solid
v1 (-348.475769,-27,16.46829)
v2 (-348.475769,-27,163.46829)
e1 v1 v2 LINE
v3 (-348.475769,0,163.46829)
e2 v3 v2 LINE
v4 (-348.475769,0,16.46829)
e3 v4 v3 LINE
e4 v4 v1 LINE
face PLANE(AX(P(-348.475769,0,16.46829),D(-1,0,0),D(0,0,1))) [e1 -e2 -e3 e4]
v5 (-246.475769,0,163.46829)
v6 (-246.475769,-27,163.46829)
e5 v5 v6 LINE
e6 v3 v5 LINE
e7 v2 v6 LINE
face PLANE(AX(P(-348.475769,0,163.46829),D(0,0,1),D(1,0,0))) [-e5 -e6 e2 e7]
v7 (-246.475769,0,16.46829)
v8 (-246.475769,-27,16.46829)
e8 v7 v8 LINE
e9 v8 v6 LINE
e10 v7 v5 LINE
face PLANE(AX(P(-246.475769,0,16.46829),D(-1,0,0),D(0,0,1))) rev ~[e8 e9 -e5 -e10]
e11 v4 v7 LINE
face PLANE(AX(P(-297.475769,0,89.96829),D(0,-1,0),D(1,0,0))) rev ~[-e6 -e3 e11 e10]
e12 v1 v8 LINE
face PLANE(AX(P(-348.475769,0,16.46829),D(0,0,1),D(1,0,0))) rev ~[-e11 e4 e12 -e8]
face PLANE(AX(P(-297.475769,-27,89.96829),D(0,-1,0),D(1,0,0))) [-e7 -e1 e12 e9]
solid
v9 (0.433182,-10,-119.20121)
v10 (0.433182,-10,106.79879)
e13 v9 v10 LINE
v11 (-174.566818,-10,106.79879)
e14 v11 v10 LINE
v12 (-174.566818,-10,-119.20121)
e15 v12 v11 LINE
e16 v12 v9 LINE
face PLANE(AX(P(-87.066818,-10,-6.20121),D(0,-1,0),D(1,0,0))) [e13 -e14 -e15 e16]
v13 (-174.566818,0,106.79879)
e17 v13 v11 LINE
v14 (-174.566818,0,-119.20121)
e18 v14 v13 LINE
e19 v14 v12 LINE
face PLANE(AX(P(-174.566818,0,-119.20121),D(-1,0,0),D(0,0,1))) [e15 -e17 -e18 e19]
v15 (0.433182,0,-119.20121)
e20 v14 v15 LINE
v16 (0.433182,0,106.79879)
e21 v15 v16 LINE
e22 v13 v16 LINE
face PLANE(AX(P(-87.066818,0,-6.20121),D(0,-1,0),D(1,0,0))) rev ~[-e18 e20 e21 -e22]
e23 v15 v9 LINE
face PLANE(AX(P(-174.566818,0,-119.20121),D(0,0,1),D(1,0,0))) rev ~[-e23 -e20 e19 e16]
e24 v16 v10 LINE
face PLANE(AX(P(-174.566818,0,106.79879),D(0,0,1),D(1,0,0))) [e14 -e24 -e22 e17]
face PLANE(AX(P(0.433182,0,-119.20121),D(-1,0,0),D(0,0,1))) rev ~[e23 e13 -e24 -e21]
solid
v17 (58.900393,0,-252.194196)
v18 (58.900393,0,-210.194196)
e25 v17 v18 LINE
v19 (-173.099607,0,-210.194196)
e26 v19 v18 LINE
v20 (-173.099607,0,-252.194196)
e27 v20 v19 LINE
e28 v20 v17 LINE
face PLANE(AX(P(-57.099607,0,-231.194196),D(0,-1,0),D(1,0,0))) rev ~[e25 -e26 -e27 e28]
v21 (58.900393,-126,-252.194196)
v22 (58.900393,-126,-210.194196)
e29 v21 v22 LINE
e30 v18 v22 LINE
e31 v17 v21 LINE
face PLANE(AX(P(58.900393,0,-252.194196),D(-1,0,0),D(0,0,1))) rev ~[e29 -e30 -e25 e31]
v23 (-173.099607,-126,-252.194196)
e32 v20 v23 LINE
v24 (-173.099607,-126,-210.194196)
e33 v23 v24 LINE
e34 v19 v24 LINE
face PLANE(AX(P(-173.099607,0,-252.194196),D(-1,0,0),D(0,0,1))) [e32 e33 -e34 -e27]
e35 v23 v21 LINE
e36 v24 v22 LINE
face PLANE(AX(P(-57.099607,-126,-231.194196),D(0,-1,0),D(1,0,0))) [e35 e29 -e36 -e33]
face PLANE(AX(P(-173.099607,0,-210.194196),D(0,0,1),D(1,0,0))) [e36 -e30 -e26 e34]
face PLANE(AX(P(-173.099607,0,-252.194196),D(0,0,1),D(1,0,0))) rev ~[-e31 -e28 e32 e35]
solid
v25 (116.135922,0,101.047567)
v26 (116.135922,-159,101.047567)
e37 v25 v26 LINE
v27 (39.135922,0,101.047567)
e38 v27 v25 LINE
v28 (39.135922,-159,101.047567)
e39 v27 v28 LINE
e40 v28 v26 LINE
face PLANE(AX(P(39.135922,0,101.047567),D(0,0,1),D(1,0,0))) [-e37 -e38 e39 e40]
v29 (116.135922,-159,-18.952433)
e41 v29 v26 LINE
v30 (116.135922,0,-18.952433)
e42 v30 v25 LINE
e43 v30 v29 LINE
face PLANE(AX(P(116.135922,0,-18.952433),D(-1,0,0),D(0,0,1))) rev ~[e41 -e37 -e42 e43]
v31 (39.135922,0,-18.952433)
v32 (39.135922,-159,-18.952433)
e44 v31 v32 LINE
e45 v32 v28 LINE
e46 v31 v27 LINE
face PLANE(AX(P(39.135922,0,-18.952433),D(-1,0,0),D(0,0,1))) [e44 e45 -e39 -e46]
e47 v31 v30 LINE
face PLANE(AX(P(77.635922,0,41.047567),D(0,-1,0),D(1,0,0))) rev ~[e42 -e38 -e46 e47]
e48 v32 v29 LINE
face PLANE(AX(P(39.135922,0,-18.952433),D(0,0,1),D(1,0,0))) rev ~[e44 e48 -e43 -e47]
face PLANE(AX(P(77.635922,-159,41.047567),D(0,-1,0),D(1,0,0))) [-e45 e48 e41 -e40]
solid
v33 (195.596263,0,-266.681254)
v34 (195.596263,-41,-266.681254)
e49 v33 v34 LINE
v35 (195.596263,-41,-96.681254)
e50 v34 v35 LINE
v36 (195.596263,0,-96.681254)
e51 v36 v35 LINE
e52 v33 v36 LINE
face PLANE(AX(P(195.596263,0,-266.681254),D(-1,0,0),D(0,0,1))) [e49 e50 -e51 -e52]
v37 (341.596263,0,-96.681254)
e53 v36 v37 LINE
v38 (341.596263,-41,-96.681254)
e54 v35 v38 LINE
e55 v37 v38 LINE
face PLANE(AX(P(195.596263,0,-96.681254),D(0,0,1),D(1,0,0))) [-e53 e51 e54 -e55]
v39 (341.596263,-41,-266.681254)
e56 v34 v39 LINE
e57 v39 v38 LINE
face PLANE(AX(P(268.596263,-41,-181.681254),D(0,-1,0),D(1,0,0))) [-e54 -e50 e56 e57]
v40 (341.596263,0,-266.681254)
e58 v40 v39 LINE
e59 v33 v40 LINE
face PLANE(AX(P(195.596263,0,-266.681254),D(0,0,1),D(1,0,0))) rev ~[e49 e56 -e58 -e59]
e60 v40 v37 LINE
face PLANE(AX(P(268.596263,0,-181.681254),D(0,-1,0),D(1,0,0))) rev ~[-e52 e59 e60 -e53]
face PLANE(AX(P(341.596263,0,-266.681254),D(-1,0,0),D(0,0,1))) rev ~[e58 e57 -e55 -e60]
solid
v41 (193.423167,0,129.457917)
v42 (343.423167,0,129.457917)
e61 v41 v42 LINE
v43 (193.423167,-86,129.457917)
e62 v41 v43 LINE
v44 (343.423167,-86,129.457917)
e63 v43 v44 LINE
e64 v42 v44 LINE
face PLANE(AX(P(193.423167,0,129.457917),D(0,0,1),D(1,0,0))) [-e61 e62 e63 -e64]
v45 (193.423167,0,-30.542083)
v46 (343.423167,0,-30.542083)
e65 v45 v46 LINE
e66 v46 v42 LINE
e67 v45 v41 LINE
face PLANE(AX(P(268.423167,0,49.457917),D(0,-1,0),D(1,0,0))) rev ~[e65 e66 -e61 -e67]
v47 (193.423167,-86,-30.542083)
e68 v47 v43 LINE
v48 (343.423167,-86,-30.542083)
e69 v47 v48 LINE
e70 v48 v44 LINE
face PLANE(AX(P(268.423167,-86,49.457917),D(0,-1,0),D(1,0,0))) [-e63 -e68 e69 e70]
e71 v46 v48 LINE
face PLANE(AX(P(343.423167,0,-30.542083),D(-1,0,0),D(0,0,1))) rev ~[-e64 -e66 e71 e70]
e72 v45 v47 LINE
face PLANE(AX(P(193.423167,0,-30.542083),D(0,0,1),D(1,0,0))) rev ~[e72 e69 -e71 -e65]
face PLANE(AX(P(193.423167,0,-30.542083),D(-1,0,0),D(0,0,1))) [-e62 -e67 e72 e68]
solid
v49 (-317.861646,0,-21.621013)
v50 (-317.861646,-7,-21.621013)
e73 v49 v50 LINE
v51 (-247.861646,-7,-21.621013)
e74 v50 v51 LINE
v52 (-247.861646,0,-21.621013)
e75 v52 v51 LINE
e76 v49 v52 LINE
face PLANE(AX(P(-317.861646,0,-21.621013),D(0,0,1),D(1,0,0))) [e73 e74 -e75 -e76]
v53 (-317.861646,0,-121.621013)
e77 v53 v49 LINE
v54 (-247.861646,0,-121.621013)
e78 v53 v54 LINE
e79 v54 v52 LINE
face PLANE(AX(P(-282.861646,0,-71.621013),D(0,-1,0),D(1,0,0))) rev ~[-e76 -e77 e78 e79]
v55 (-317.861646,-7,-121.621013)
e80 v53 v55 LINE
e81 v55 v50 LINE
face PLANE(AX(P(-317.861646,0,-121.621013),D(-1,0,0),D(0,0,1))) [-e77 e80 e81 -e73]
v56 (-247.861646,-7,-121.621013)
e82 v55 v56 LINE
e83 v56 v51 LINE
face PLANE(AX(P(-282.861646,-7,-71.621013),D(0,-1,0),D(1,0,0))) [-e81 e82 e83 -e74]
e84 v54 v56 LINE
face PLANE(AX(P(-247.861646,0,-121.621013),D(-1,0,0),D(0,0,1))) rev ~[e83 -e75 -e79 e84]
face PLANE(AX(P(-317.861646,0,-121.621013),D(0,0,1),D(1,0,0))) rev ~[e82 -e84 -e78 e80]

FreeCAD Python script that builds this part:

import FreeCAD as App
import Part
import Sketcher
from FreeCAD import Vector


def add_polygon(sketch, points):
    """Adds a closed chain of lines whose ends are joined by coincident constraints."""
    first, n = sketch.GeometryCount, len(points)
    for a, b in zip(points, points[1:] + points[:1]):
        sketch.addGeometry(Part.LineSegment(App.Vector(*a, 0), App.Vector(*b, 0)), False)
    for i in range(n):
        sketch.addConstraint(Sketcher.Constraint("Coincident", first + i, 2, first + (i + 1) % n, 1))

doc = App.newDocument("Part")
body = doc.addObject("PartDesign::Body", "Body")

sketch1 = body.newObject("Sketcher::SketchObject", "Sketch")
sketch1.AttachmentSupport = (doc.getObject("XZ_Plane"), [""])
sketch1.MapMode = "FlatFace"
add_polygon(sketch1, [(-174.566818, 106.79879), (-174.566818, -119.20121), (0.433182, -119.20121), (0.433182, 106.79879)])
sketch1.addConstraint([
    Sketcher.Constraint("Vertical", 0),
    Sketcher.Constraint("Horizontal", 1),
    Sketcher.Constraint("Vertical", 2),
    Sketcher.Constraint("Horizontal", 3),
    Sketcher.Constraint("DistanceX", 1, 1, 1, 2, 175.0),
    Sketcher.Constraint("DistanceY", 0, 2, 0, 1, 226.0),
    Sketcher.Constraint("DistanceX", 0, 2, -1, 1, 174.566818),
    Sketcher.Constraint("DistanceY", 0, 2, -1, 1, 119.20121),
])
pad1 = body.newObject("PartDesign::Pad", "Pad")
pad1.Profile = sketch1
pad1.Length = 10
body2 = doc.addObject("PartDesign::Body", "Body001")

sketch2 = body2.newObject("Sketcher::SketchObject", "Sketch001")
sketch2.AttachmentSupport = (doc.getObject("XZ_Plane001"), [""])
sketch2.MapMode = "FlatFace"
add_polygon(sketch2, [(39.135922, 101.047567), (39.135922, -18.952433), (116.135922, -18.952433), (116.135922, 101.047567)])
sketch2.addConstraint([
    Sketcher.Constraint("Vertical", 0),
    Sketcher.Constraint("Horizontal", 1),
    Sketcher.Constraint("Vertical", 2),
    Sketcher.Constraint("Horizontal", 3),
    Sketcher.Constraint("DistanceX", 1, 1, 1, 2, 77.0),
    Sketcher.Constraint("DistanceY", 0, 2, 0, 1, 120.0),
    Sketcher.Constraint("DistanceX", -1, 1, 1, 2, 116.135922),
    Sketcher.Constraint("DistanceY", 0, 2, -1, 1, 18.952433),
])
pad2 = body2.newObject("PartDesign::Pad", "Pad001")
pad2.Profile = sketch2
pad2.Length = 159
body3 = doc.addObject("PartDesign::Body", "Body002")

sketch3 = body3.newObject("Sketcher::SketchObject", "Sketch002")
sketch3.AttachmentSupport = (doc.getObject("XZ_Plane002"), [""])
sketch3.MapMode = "FlatFace"
add_polygon(sketch3, [(193.423167, 129.457917), (193.423167, -30.542083), (343.423167, -30.542083), (343.423167, 129.457917)])
sketch3.addConstraint([
    Sketcher.Constraint("Vertical", 0),
    Sketcher.Constraint("Horizontal", 1),
    Sketcher.Constraint("Vertical", 2),
    Sketcher.Constraint("Horizontal", 3),
    Sketcher.Constraint("DistanceX", 1, 1, 1, 2, 150.0),
    Sketcher.Constraint("DistanceY", 0, 2, 0, 1, 160.0),
    Sketcher.Constraint("DistanceX", -1, 1, 0, 2, 193.423167),
    Sketcher.Constraint("DistanceY", 0, 2, -1, 1, 30.542083),
])
pad3 = body3.newObject("PartDesign::Pad", "Pad002")
pad3.Profile = sketch3
pad3.Length = 86
body4 = doc.addObject("PartDesign::Body", "Body003")

sketch4 = body4.newObject("Sketcher::SketchObject", "Sketch003")
sketch4.AttachmentSupport = (doc.getObject("XZ_Plane003"), [""])
sketch4.MapMode = "FlatFace"
add_polygon(sketch4, [(-173.099607, -210.194196), (-173.099607, -252.194196), (58.900393, -252.194196), (58.900393, -210.194196)])
sketch4.addConstraint([
    Sketcher.Constraint("Vertical", 0),
    Sketcher.Constraint("Horizontal", 1),
    Sketcher.Constraint("Vertical", 2),
    Sketcher.Constraint("Horizontal", 3),
    Sketcher.Constraint("DistanceX", 1, 1, 1, 2, 232.0),
    Sketcher.Constraint("DistanceY", 0, 2, 0, 1, 42.0),
    Sketcher.Constraint("DistanceX", 0, 2, -1, 1, 173.099607),
    Sketcher.Constraint("DistanceY", 0, 2, -1, 1, 252.194196),
])
pad4 = body4.newObject("PartDesign::Pad", "Pad003")
pad4.Profile = sketch4
pad4.Length = 126
body5 = doc.addObject("PartDesign::Body", "Body004")

sketch5 = body5.newObject("Sketcher::SketchObject", "Sketch004")
sketch5.AttachmentSupport = (doc.getObject("XZ_Plane004"), [""])
sketch5.MapMode = "FlatFace"
add_polygon(sketch5, [(195.596263, -96.681254), (195.596263, -266.681254), (341.596263, -266.681254), (341.596263, -96.681254)])
sketch5.addConstraint([
    Sketcher.Constraint("Vertical", 0),
    Sketcher.Constraint("Horizontal", 1),
    Sketcher.Constraint("Vertical", 2),
    Sketcher.Constraint("Horizontal", 3),
    Sketcher.Constraint("DistanceX", 1, 1, 1, 2, 146.0),
    Sketcher.Constraint("DistanceY", 0, 2, 0, 1, 170.0),
    Sketcher.Constraint("DistanceX", -1, 1, 0, 2, 195.596263),
    Sketcher.Constraint("DistanceY", 0, 2, -1, 1, 266.681254),
])
pad5 = body5.newObject("PartDesign::Pad", "Pad004")
pad5.Profile = sketch5
pad5.Length = 41
body6 = doc.addObject("PartDesign::Body", "Body005")

sketch6 = body6.newObject("Sketcher::SketchObject", "Sketch005")
sketch6.AttachmentSupport = (doc.getObject("XZ_Plane005"), [""])
sketch6.MapMode = "FlatFace"
add_polygon(sketch6, [(-348.475769, 163.46829), (-348.475769, 16.46829), (-246.475769, 16.46829), (-246.475769, 163.46829)])
sketch6.addConstraint([
    Sketcher.Constraint("Vertical", 0),
    Sketcher.Constraint("Horizontal", 1),
    Sketcher.Constraint("Vertical", 2),
    Sketcher.Constraint("Horizontal", 3),
    Sketcher.Constraint("DistanceX", 1, 1, 1, 2, 102.0),
    Sketcher.Constraint("DistanceY", 0, 2, 0, 1, 147.0),
    Sketcher.Constraint("DistanceX", 0, 2, -1, 1, 348.475769),
    Sketcher.Constraint("DistanceY", -1, 1, 0, 2, 16.46829),
])
pad6 = body6.newObject("PartDesign::Pad", "Pad005")
pad6.Profile = sketch6
pad6.Length = 27
body7 = doc.addObject("PartDesign::Body", "Body006")

sketch7 = body7.newObject("Sketcher::SketchObject", "Sketch006")
sketch7.AttachmentSupport = (doc.getObject("XZ_Plane006"), [""])
sketch7.MapMode = "FlatFace"
add_polygon(sketch7, [(-317.861646, -21.621013), (-317.861646, -121.621013), (-247.861646, -121.621013), (-247.861646, -21.621013)])
sketch7.addConstraint([
    Sketcher.Constraint("Vertical", 0),
    Sketcher.Constraint("Horizontal", 1),
    Sketcher.Constraint("Vertical", 2),
    Sketcher.Constraint("Horizontal", 3),
    Sketcher.Constraint("DistanceX", 1, 1, 1, 2, 70.0),
    Sketcher.Constraint("DistanceY", 0, 2, 0, 1, 100.0),
    Sketcher.Constraint("DistanceX", 0, 2, -1, 1, 317.861646),
    Sketcher.Constraint("DistanceY", 0, 2, -1, 1, 121.621013),
])
pad7 = body7.newObject("PartDesign::Pad", "Pad006")
pad7.Profile = sketch7
pad7.Length = 7

doc.recompute()
